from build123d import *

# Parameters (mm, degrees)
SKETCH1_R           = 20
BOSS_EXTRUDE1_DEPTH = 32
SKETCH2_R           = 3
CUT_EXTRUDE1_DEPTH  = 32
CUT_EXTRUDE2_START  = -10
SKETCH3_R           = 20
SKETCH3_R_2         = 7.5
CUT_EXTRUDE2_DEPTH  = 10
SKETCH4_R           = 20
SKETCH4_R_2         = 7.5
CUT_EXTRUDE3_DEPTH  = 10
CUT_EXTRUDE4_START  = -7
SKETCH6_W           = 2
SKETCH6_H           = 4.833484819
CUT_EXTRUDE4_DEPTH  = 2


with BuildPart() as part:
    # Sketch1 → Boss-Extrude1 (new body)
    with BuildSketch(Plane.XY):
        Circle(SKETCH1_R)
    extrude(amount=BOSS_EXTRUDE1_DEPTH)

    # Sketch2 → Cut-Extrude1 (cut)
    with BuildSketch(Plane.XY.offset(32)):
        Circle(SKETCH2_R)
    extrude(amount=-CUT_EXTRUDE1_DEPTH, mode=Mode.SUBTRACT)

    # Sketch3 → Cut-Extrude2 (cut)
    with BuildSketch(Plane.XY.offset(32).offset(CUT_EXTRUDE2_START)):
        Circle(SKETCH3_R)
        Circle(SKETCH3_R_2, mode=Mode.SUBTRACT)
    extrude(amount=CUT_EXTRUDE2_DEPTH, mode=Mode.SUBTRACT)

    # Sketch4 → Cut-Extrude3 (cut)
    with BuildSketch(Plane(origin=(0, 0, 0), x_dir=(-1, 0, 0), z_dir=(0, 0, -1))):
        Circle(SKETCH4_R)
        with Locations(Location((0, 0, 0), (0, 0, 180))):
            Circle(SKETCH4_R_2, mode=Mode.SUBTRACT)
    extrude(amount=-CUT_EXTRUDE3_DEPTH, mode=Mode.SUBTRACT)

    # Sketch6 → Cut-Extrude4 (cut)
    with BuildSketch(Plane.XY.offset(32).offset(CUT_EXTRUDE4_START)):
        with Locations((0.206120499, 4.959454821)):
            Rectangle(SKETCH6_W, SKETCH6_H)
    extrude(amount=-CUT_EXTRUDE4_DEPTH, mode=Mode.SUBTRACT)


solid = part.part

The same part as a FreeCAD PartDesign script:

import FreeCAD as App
import Part
import Sketcher
from FreeCAD import Vector
Q = App.Units.Quantity


def add_polygon(sketch, points):
    """Adds a closed chain of lines whose ends are joined by coincident constraints."""
    first, n = sketch.GeometryCount, len(points)
    for a, b in zip(points, points[1:] + points[:1]):
        sketch.addGeometry(Part.LineSegment(App.Vector(*a, 0), App.Vector(*b, 0)), False)
    for i in range(n):
        sketch.addConstraint(Sketcher.Constraint("Coincident", first + i, 2, first + (i + 1) % n, 1))

doc = App.newDocument("Part")
params = doc.addObject("Spreadsheet::Sheet", "Params")
for row, (alias, value) in enumerate([
    ("sketch1_diameter", "40 mm"),
    ("pad1_length", "32 mm"),
    ("sketch2_diameter", "6 mm"),
    ("pocket1_length", "32 mm"),
    ("sketch3_diameter", "40 mm"),
    ("sketch3_diameter2", "15 mm"),
    ("pocket2_length", "10 mm"),
    ("sketch4_diameter", "40 mm"),
    ("sketch4_diameter2", "15 mm"),
    ("pocket3_length", "10 mm"),
    ("sketch5_width", "2 mm"),
    ("pocket4_length", "2 mm"),
], start=1):
    params.set(f"A{row}", alias)
    params.set(f"B{row}", "=" + value)
    params.setAlias(f"B{row}", alias)

body = doc.addObject("PartDesign::Body", "Body")

# Sketch on XY plane
sketch1 = doc.addObject("Sketcher::SketchObject", "Sketch")
body.addObject(sketch1)
sketch1.AttachmentSupport = (doc.XY_Plane, [""])
sketch1.MapMode = "FlatFace"
sketch1.addGeometry(Part.Circle(Vector(0, 0, 0), Vector(0, 0, 1), 20), False)
sketch1.addConstraint([
    Sketcher.Constraint("Coincident", 0, 3, -1, 1),
    Sketcher.Constraint("Diameter", 0, Q("40 mm")),
])
sketch1.setExpression("Constraints[1]", "Params.sketch1_diameter")
pad1 = doc.addObject("PartDesign::Pad", "Pad")
body.addObject(pad1)
pad1.Profile = sketch1
pad1.setExpression("Length", "Params.pad1_length")

# Sketch on XY plane
sketch2 = doc.addObject("Sketcher::SketchObject", "Sketch001")
body.addObject(sketch2)
sketch2.AttachmentSupport = (doc.XY_Plane, [""])
sketch2.MapMode = "FlatFace"
sketch2.AttachmentOffset = App.Placement(Vector(0, 0, 32), App.Rotation())
sketch2.addGeometry(Part.Circle(Vector(0, 0, 0), Vector(0, 0, 1), 3), False)
sketch2.addConstraint([
    Sketcher.Constraint("Coincident", 0, 3, -1, 1),
    Sketcher.Constraint("Diameter", 0, Q("6 mm")),
])
sketch2.setExpression("Constraints[1]", "Params.sketch2_diameter")
pocket1 = doc.addObject("PartDesign::Pocket", "Pocket")
body.addObject(pocket1)
pocket1.Profile = sketch2
pocket1.setExpression("Length", "Params.pocket1_length")

# Sketch on XY plane
sketch3 = doc.addObject("Sketcher::SketchObject", "Sketch002")
body.addObject(sketch3)
sketch3.AttachmentSupport = (doc.XY_Plane, [""])
sketch3.MapMode = "FlatFace"
sketch3.AttachmentOffset = App.Placement(Vector(0, 0, 22), App.Rotation())
sketch3.addGeometry([
    Part.Circle(Vector(0, 0, 0), Vector(0, 0, 1), 20),
    Part.Circle(Vector(0, 0, 0), Vector(0, 0, 1), 7.5),
], False)
sketch3.addConstraint([
    Sketcher.Constraint("Coincident", 0, 3, -1, 1),
    Sketcher.Constraint("Coincident", 1, 3, -1, 1),
    Sketcher.Constraint("Diameter", 0, Q("40 mm")),
    Sketcher.Constraint("Diameter", 1, Q("15 mm")),
])
sketch3.setExpression("Constraints[2]", "Params.sketch3_diameter")
sketch3.setExpression("Constraints[3]", "Params.sketch3_diameter2")
pocket2 = doc.addObject("PartDesign::Pocket", "Pocket001")
body.addObject(pocket2)
pocket2.Profile = sketch3
pocket2.setExpression("Length", "Params.pocket2_length")
pocket2.Reversed = True

# Sketch on XY plane
sketch4 = doc.addObject("Sketcher::SketchObject", "Sketch003")
body.addObject(sketch4)
sketch4.AttachmentSupport = (doc.XY_Plane, [""])
sketch4.MapMode = "FlatFace"
sketch4.addGeometry([
    Part.Circle(Vector(0, 0, 0), Vector(0, 0, 1), 20),
    Part.Circle(Vector(0, 0, 0), Vector(0, 0, 1), 7.5),
], False)
sketch4.addConstraint([
    Sketcher.Constraint("Coincident", 0, 3, -1, 1),
    Sketcher.Constraint("Coincident", 1, 3, -1, 1),
    Sketcher.Constraint("Diameter", 0, Q("40 mm")),
    Sketcher.Constraint("Diameter", 1, Q("15 mm")),
])
sketch4.setExpression("Constraints[2]", "Params.sketch4_diameter")
sketch4.setExpression("Constraints[3]", "Params.sketch4_diameter2")
pocket3 = doc.addObject("PartDesign::Pocket", "Pocket002")
body.addObject(pocket3)
pocket3.Profile = sketch4
pocket3.setExpression("Length", "Params.pocket3_length")
pocket3.Reversed = True

# Sketch on XY plane
sketch5 = doc.addObject("Sketcher::SketchObject", "Sketch004")
body.addObject(sketch5)
sketch5.AttachmentSupport = (doc.XY_Plane, [""])
sketch5.MapMode = "FlatFace"
sketch5.AttachmentOffset = App.Placement(Vector(0, 0, 25), App.Rotation())
add_polygon(sketch5, [(-0.79388, 7.376197), (-0.79388, 2.542712), (1.20612, 2.542712), (1.20612, 7.376197)])  # lines 0-3
sketch5.addConstraint([
    Sketcher.Constraint("Vertical", 0),
    Sketcher.Constraint("Horizontal", 1),
    Sketcher.Constraint("Vertical", 2),
    Sketcher.Constraint("Horizontal", 3),
    Sketcher.Constraint("DistanceX", 1, 1, 1, 2, Q("2 mm")),
    Sketcher.Constraint("DistanceY", 0, 2, 0, 1, Q("4.833485 mm")),
    Sketcher.Constraint("DistanceX", 0, 2, -1, 1, Q("0.79388 mm")),
    Sketcher.Constraint("DistanceY", -1, 1, 0, 2, Q("2.542712 mm")),
])
sketch5.setExpression("Constraints[8]", "Params.sketch5_width")
pocket4 = doc.addObject("PartDesign::Pocket", "Pocket003")
body.addObject(pocket4)
pocket4.Profile = sketch5
pocket4.setExpression("Length", "Params.pocket4_length")

doc.recompute()
